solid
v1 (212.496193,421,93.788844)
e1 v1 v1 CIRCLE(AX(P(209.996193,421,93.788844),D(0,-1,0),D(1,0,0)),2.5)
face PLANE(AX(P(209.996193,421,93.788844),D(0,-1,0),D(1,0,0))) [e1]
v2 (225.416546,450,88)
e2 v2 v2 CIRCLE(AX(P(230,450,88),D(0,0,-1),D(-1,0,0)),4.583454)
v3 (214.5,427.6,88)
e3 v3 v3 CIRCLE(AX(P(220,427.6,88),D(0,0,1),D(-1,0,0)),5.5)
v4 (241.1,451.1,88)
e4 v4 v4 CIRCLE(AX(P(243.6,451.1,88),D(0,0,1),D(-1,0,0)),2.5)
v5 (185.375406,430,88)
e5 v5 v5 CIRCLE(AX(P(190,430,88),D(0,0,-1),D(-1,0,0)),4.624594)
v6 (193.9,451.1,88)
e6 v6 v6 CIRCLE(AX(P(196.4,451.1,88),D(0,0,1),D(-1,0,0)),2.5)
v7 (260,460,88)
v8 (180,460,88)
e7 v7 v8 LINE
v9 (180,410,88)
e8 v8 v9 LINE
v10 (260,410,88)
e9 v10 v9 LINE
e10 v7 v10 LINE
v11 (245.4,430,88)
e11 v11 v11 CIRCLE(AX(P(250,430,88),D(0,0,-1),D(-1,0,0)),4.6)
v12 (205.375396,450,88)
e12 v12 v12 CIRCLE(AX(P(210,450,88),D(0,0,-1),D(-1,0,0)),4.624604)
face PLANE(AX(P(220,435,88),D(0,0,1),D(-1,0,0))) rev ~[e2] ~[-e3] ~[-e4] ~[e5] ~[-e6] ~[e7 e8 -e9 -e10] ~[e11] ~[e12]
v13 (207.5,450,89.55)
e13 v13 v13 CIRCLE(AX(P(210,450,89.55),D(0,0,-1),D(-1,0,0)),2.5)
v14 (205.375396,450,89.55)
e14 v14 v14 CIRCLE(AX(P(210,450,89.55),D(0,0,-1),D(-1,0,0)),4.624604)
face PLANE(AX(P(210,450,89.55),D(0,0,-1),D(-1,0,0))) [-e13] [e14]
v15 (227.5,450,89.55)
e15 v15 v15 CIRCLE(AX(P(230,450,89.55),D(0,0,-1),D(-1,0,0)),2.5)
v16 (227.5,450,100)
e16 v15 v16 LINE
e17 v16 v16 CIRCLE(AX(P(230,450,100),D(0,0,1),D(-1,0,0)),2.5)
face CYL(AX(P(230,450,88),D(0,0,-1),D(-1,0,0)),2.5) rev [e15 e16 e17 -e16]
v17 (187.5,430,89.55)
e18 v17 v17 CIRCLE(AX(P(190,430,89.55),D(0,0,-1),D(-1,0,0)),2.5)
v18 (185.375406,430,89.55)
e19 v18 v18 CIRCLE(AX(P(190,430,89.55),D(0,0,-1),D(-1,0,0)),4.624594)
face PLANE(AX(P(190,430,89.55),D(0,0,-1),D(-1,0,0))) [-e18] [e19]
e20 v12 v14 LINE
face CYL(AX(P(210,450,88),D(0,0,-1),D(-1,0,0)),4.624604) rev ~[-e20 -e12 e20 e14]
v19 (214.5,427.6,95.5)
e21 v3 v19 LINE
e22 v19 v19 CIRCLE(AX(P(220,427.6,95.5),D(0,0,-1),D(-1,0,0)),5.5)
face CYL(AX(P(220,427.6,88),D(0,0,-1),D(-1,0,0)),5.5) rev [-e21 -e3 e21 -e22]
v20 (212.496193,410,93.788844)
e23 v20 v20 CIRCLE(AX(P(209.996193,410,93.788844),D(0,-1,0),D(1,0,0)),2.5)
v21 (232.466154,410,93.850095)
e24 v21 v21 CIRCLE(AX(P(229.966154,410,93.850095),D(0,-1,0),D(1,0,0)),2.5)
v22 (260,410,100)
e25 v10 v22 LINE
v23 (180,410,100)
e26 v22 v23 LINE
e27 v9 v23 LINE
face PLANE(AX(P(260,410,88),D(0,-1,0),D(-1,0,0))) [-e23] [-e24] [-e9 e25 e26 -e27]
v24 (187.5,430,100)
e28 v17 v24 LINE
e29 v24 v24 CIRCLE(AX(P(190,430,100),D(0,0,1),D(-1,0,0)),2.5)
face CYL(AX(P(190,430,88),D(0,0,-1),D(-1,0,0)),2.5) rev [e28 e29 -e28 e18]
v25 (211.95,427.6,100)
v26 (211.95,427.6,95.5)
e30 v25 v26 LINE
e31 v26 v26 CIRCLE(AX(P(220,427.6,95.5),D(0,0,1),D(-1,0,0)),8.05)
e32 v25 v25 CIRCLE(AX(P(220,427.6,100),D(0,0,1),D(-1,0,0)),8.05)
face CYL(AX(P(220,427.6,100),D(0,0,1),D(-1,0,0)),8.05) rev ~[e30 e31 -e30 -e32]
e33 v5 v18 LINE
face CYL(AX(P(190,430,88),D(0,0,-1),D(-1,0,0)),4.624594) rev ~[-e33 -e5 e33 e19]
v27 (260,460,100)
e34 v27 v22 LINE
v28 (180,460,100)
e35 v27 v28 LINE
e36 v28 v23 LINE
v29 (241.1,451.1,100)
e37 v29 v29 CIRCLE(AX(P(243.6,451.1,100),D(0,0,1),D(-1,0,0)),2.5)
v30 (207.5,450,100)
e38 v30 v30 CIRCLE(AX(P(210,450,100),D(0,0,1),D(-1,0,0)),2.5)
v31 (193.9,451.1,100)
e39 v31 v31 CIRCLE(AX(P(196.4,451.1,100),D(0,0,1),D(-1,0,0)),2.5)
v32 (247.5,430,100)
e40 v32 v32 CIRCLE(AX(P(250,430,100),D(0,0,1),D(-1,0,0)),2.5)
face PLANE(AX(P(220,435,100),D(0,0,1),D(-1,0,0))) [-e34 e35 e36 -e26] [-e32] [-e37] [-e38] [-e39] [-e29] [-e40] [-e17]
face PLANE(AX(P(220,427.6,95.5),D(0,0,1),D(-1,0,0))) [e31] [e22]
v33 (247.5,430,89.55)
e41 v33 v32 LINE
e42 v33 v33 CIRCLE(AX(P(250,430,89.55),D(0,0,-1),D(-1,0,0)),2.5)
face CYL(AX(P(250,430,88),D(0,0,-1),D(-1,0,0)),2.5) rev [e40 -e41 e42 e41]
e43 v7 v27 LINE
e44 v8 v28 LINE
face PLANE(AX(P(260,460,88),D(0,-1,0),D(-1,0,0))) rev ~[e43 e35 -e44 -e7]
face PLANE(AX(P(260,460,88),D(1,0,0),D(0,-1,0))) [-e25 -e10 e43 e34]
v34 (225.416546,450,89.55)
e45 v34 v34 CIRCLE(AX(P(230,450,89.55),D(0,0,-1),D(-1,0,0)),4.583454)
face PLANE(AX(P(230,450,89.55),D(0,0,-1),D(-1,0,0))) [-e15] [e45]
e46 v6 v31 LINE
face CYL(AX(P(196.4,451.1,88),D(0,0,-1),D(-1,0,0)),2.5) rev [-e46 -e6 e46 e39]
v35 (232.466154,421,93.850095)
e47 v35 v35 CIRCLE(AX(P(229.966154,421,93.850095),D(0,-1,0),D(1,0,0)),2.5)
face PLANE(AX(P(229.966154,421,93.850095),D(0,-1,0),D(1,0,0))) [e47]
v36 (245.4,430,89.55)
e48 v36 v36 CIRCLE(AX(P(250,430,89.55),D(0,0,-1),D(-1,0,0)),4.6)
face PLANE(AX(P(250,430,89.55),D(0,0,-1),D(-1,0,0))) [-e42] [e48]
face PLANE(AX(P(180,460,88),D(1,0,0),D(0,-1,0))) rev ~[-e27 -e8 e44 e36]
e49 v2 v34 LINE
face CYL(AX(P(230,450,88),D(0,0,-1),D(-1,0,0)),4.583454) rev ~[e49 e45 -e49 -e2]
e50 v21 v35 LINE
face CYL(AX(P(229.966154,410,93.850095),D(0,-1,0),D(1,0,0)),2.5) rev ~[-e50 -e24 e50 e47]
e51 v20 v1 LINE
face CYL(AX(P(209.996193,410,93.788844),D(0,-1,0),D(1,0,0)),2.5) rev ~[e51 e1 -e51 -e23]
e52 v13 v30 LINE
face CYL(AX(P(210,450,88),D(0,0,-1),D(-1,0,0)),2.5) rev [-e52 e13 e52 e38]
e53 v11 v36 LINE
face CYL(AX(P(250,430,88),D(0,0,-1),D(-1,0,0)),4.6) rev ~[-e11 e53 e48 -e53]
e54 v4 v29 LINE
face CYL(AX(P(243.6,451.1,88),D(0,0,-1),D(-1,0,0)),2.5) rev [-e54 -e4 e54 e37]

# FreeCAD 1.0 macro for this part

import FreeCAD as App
import Part
import Sketcher

V = App.Vector
Q = App.Units.Quantity


def add_polygon(sketch, points):
    """Adds a closed chain of lines whose ends are joined by coincident constraints."""
    first, n = sketch.GeometryCount, len(points)
    for a, b in zip(points, points[1:] + points[:1]):
        sketch.addGeometry(Part.LineSegment(App.Vector(*a, 0), App.Vector(*b, 0)), False)
    for i in range(n):
        sketch.addConstraint(Sketcher.Constraint("Coincident", first + i, 2, first + (i + 1) % n, 1))

doc = App.newDocument("Part")
body = doc.addObject("PartDesign::Body", "Body")

sketch1 = body.newObject("Sketcher::SketchObject", "Sketch")
sketch1.AttachmentSupport = (doc.getObject("XY_Plane"), [""])
sketch1.MapMode = "FlatFace"
sketch1.AttachmentOffset = App.Placement(V(0, 0, 88), App.Rotation())
add_polygon(sketch1, [(260, 410), (260, 460), (180, 460), (180, 410)])
sketch1.addGeometry(Part.Circle(V(243.6, 451.1, 0), V(0, 0, 1), 2.5), False)
sketch1.addGeometry(Part.Circle(V(230, 450, 0), V(0, 0, 1), 2.5), False)
sketch1.addGeometry(Part.Circle(V(210, 450, 0), V(0, 0, 1), 2.5), False)
sketch1.addGeometry(Part.Circle(V(196.4, 451.1, 0), V(0, 0, 1), 2.5), False)
sketch1.addGeometry(Part.Circle(V(250, 430, 0), V(0, 0, 1), 2.5), False)
sketch1.addGeometry(Part.Circle(V(190, 430, 0), V(0, 0, 1), 2.5), False)
sketch1.addGeometry(Part.Circle(V(220, 427.6, 0), V(0, 0, 1), 5.5), False)
sketch1.addConstraint(Sketcher.Constraint("Vertical", 0))
sketch1.addConstraint(Sketcher.Constraint("Horizontal", 1))
sketch1.addConstraint(Sketcher.Constraint("Vertical", 2))
sketch1.addConstraint(Sketcher.Constraint("Horizontal", 3))
sketch1.addConstraint(Sketcher.Constraint("Equal", 4, 5))
sketch1.addConstraint(Sketcher.Constraint("Equal", 5, 6))
sketch1.addConstraint(Sketcher.Constraint("Equal", 6, 7))
sketch1.addConstraint(Sketcher.Constraint("Equal", 7, 8))
sketch1.addConstraint(Sketcher.Constraint("Equal", 8, 9))
sketch1.addConstraint(Sketcher.Constraint("Horizontal", 5, 3, 6, 3))
sketch1.addConstraint(Sketcher.Constraint("Horizontal", 4, 3, 7, 3))
sketch1.addConstraint(Sketcher.Constraint("Horizontal", 8, 3, 9, 3))
sketch1.addConstraint(Sketcher.Constraint("Diameter", 4, Q("5 mm")))
sketch1.addConstraint(Sketcher.Constraint("Diameter", 10, Q("11 mm")))
sketch1.addConstraint(Sketcher.Constraint("DistanceX", 1, 2, 1, 1, Q("80 mm")))
sketch1.addConstraint(Sketcher.Constraint("DistanceY", 0, 1, 0, 2, Q("50 mm")))
sketch1.addConstraint(Sketcher.Constraint("DistanceX", -1, 1, 5, 3, Q("230 mm")))
sketch1.addConstraint(Sketcher.Constraint("DistanceY", -1, 1, 5, 3, Q("450 mm")))
sketch1.addConstraint(Sketcher.Constraint("DistanceX", -1, 1, 6, 3, Q("210 mm")))
sketch1.addConstraint(Sketcher.Constraint("DistanceX", -1, 1, 8, 3, Q("250 mm")))
sketch1.addConstraint(Sketcher.Constraint("DistanceY", -1, 1, 8, 3, Q("430 mm")))
sketch1.addConstraint(Sketcher.Constraint("DistanceX", -1, 1, 9, 3, Q("190 mm")))
sketch1.addConstraint(Sketcher.Constraint("DistanceX", -1, 1, 10, 3, Q("220 mm")))
sketch1.addConstraint(Sketcher.Constraint("DistanceX", -1, 1, 0, 2, Q("260 mm")))
sketch1.addConstraint(Sketcher.Constraint("DistanceY", -1, 1, 0, 2, Q("460 mm")))
sketch1.addConstraint(Sketcher.Constraint("DistanceX", -1, 1, 4, 3, Q("243.6 mm")))
sketch1.addConstraint(Sketcher.Constraint("DistanceY", -1, 1, 4, 3, Q("451.1 mm")))
sketch1.addConstraint(Sketcher.Constraint("DistanceX", -1, 1, 7, 3, Q("196.4 mm")))
sketch1.addConstraint(Sketcher.Constraint("DistanceY", -1, 1, 10, 3, Q("427.6 mm")))
pad1 = body.newObject("PartDesign::Pad", "Pad")
pad1.Profile = sketch1
pad1.Length = 12

sketch2 = body.newObject("Sketcher::SketchObject", "Sketch001")
sketch2.AttachmentSupport = (doc.getObject("XZ_Plane"), [""])
sketch2.MapMode = "FlatFace"
sketch2.AttachmentOffset = App.Placement(V(0, 0, -410), App.Rotation())
sketch2.addGeometry(Part.Circle(V(229.966154, 93.850095, 0), V(0, 0, 1), 2.5), False)
sketch2.addGeometry(Part.Circle(V(209.996193, 93.788844, 0), V(0, 0, 1), 2.5), False)
sketch2.addConstraint(Sketcher.Constraint("Equal", 0, 1))
sketch2.addConstraint(Sketcher.Constraint("Diameter", 0, Q("5 mm")))
sketch2.addConstraint(Sketcher.Constraint("DistanceX", 1, 3, 0, 3, Q("19.969961 mm")))
sketch2.addConstraint(Sketcher.Constraint("DistanceY", 1, 3, 0, 3, Q("0.061251 mm")))
sketch2.addConstraint(Sketcher.Constraint("DistanceX", -1, 1, 0, 3, Q("229.966154 mm")))
sketch2.addConstraint(Sketcher.Constraint("DistanceY", -1, 1, 0, 3, Q("93.850095 mm")))
pocket1 = body.newObject("PartDesign::Pocket", "Pocket")
pocket1.Profile = sketch2
pocket1.Length = 11

sketch3 = body.newObject("Sketcher::SketchObject", "Sketch002")
sketch3.AttachmentSupport = (doc.getObject("XY_Plane"), [""])
sketch3.MapMode = "FlatFace"
sketch3.AttachmentOffset = App.Placement(V(0, 0, 100), App.Rotation())
sketch3.addGeometry(Part.Circle(V(220, 427.6, 0), V(0, 0, 1), 8.05), False)
sketch3.addConstraint(Sketcher.Constraint("Diameter", 0, Q("16.1 mm")))
sketch3.addConstraint(Sketcher.Constraint("DistanceX", -1, 1, 0, 3, Q("220 mm")))
sketch3.addConstraint(Sketcher.Constraint("DistanceY", -1, 1, 0, 3, Q("427.6 mm")))
pocket2 = body.newObject("PartDesign::Pocket", "Pocket001")
pocket2.Profile = sketch3
pocket2.Length = 4.5

sketch4 = body.newObject("Sketcher::SketchObject", "Sketch003")
sketch4.AttachmentSupport = (doc.getObject("XY_Plane"), [""])
sketch4.MapMode = "FlatFace"
sketch4.AttachmentOffset = App.Placement(V(0, 0, 88), App.Rotation())
sketch4.addGeometry(Part.Circle(V(250, 430, 0), V(0, 0, 1), 4.6), False)
sketch4.addGeometry(Part.Circle(V(190, 430, 0), V(0, 0, 1), 4.624594), False)
sketch4.addGeometry(Part.Circle(V(230, 450, 0), V(0, 0, 1), 4.583454), False)
sketch4.addGeometry(Part.Circle(V(210, 450, 0), V(0, 0, 1), 4.624604), False)
sketch4.addConstraint(Sketcher.Constraint("Horizontal", 0, 3, 1, 3))
sketch4.addConstraint(Sketcher.Constraint("Horizontal", 2, 3, 3, 3))
sketch4.addConstraint(Sketcher.Constraint("Diameter", 0, Q("9.2 mm")))
sketch4.addConstraint(Sketcher.Constraint("DistanceX", -1, 1, 0, 3, Q("250 mm")))
sketch4.addConstraint(Sketcher.Constraint("DistanceY", -1, 1, 0, 3, Q("430 mm")))
sketch4.addConstraint(Sketcher.Constraint("DistanceX", -1, 1, 1, 3, Q("190 mm")))
sketch4.addConstraint(Sketcher.Constraint("DistanceX", -1, 1, 2, 3, Q("230 mm")))
sketch4.addConstraint(Sketcher.Constraint("DistanceY", -1, 1, 2, 3, Q("450 mm")))
sketch4.addConstraint(Sketcher.Constraint("DistanceX", -1, 1, 3, 3, Q("210 mm")))
sketch4.addConstraint(Sketcher.Constraint("Diameter", 1, Q("9.249188 mm")))
sketch4.addConstraint(Sketcher.Constraint("Diameter", 2, Q("9.166908 mm")))
sketch4.addConstraint(Sketcher.Constraint("Diameter", 3, Q("9.249208 mm")))
pocket3 = body.newObject("PartDesign::Pocket", "Pocket002")
pocket3.Profile = sketch4
pocket3.Length = 1.55
pocket3.Reversed = True

doc.recompute()
